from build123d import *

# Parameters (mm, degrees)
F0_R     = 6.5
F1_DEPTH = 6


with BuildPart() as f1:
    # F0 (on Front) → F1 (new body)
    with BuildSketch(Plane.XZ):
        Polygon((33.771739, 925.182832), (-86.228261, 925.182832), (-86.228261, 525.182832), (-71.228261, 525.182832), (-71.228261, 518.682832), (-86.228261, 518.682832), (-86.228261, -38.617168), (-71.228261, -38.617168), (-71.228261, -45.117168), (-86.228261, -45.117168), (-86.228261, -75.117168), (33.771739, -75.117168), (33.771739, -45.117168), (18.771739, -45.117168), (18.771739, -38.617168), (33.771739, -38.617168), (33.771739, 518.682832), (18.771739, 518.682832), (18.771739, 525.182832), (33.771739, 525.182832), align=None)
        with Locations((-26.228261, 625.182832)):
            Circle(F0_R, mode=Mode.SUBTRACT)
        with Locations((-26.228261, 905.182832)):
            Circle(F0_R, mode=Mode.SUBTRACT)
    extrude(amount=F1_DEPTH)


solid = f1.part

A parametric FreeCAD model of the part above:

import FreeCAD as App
import Part
import Sketcher

V = App.Vector


def add_polygon(sketch, points):
    """Adds a closed chain of lines whose ends are joined by coincident constraints."""
    first, n = sketch.GeometryCount, len(points)
    for a, b in zip(points, points[1:] + points[:1]):
        sketch.addGeometry(Part.LineSegment(App.Vector(*a, 0), App.Vector(*b, 0)), False)
    for i in range(n):
        sketch.addConstraint(Sketcher.Constraint("Coincident", first + i, 2, first + (i + 1) % n, 1))

doc = App.newDocument("Part")
body = doc.addObject("PartDesign::Body", "Body")

# Sketch on XZ plane
sketch1 = body.newObject("Sketcher::SketchObject", "Sketch")
sketch1.AttachmentSupport = (doc.getObject("XZ_Plane"), [""])
sketch1.MapMode = "FlatFace"
add_polygon(sketch1, [(33.771739, 925.182832), (-86.228261, 925.182832), (-86.228261, 525.182832), (-71.228261, 525.182832), (-71.228261, 518.682832), (-86.228261, 518.682832), (-86.228261, -38.617168), (-71.228261, -38.617168), (-71.228261, -45.117168), (-86.228261, -45.117168), (-86.228261, -75.117168), (33.771739, -75.117168), (33.771739, -45.117168), (18.771739, -45.117168), (18.771739, -38.617168), (33.771739, -38.617168), (33.771739, 518.682832), (18.771739, 518.682832), (18.771739, 525.182832), (33.771739, 525.182832)])  # lines 0-19
sketch1.addGeometry(Part.Circle(V(-26.228261, 625.182832, 0), V(0, 0, 1), 6.5), False)  # 20
sketch1.addGeometry(Part.Circle(V(-26.228261, 905.182832, 0), V(0, 0, 1), 6.5), False)  # 21
sketch1.addConstraint([
    Sketcher.Constraint("Horizontal", 0),
    Sketcher.Constraint("Vertical", 1),
    Sketcher.Constraint("Horizontal", 2),
    Sketcher.Constraint("Vertical", 3),
    Sketcher.Constraint("Horizontal", 4),
    Sketcher.Constraint("Vertical", 5),
    Sketcher.Constraint("Horizontal", 6),
    Sketcher.Constraint("Vertical", 7),
    Sketcher.Constraint("Horizontal", 8),
    Sketcher.Constraint("Vertical", 9),
    Sketcher.Constraint("Horizontal", 10),
    Sketcher.Constraint("Vertical", 11),
    Sketcher.Constraint("Horizontal", 12),
    Sketcher.Constraint("Vertical", 13),
    Sketcher.Constraint("Horizontal", 14),
    Sketcher.Constraint("Vertical", 15),
    Sketcher.Constraint("Horizontal", 16),
    Sketcher.Constraint("Vertical", 17),
    Sketcher.Constraint("Horizontal", 18),
    Sketcher.Constraint("Vertical", 19),
    Sketcher.Constraint("Equal", 20, 21),
    Sketcher.Constraint("Horizontal", 8, 2, 11, 2),
    Sketcher.Constraint("Horizontal", 6, 2, 13, 2),
    Sketcher.Constraint("Horizontal", 4, 2, 15, 2),
    Sketcher.Constraint("Horizontal", 2, 2, 17, 2),
    Sketcher.Constraint("Vertical", 20, 3, 21, 3),
    Sketcher.Constraint("Vertical", 1, 2, 4, 2),
    Sketcher.Constraint("Vertical", 3, 2, 6, 2),
    Sketcher.Constraint("Vertical", 5, 2, 8, 2),
    Sketcher.Constraint("Vertical", 11, 2, 14, 2),
    Sketcher.Constraint("Vertical", 13, 2, 16, 2),
    Sketcher.Constraint("Vertical", 15, 2, 18, 2),
    Sketcher.Constraint("Equal", 8, 12),
    Sketcher.Constraint("Equal", 3, 7),
    Sketcher.Constraint("Diameter", 20, 13.0),
    Sketcher.Constraint("DistanceX", 0, 2, 0, 1, 120.0),
    Sketcher.Constraint("DistanceX", 2, 1, 2, 2, 15.0),
    Sketcher.Constraint("DistanceY", 1, 2, 1, 1, 400.0),
    Sketcher.Constraint("DistanceY", 9, 2, 9, 1, 30.0),
    Sketcher.Constraint("DistanceY", 3, 2, 3, 1, 6.5),
    Sketcher.Constraint("DistanceY", 5, 2, 5, 1, 557.3),
    Sketcher.Constraint("DistanceY", 20, 3, 21, 3, 280.0),
    Sketcher.Constraint("DistanceX", 0, 2, 21, 3, 60.0),
    Sketcher.Constraint("DistanceY", 21, 3, 0, 2, 20.0),
    Sketcher.Constraint("DistanceX", 20, 3, -1, 1, 26.228261),
    Sketcher.Constraint("DistanceY", -1, 1, 20, 3, 625.182832),
])
pad1 = body.newObject("PartDesign::Pad", "Pad")
pad1.Profile = sketch1
pad1.Length = 6

doc.recompute()
